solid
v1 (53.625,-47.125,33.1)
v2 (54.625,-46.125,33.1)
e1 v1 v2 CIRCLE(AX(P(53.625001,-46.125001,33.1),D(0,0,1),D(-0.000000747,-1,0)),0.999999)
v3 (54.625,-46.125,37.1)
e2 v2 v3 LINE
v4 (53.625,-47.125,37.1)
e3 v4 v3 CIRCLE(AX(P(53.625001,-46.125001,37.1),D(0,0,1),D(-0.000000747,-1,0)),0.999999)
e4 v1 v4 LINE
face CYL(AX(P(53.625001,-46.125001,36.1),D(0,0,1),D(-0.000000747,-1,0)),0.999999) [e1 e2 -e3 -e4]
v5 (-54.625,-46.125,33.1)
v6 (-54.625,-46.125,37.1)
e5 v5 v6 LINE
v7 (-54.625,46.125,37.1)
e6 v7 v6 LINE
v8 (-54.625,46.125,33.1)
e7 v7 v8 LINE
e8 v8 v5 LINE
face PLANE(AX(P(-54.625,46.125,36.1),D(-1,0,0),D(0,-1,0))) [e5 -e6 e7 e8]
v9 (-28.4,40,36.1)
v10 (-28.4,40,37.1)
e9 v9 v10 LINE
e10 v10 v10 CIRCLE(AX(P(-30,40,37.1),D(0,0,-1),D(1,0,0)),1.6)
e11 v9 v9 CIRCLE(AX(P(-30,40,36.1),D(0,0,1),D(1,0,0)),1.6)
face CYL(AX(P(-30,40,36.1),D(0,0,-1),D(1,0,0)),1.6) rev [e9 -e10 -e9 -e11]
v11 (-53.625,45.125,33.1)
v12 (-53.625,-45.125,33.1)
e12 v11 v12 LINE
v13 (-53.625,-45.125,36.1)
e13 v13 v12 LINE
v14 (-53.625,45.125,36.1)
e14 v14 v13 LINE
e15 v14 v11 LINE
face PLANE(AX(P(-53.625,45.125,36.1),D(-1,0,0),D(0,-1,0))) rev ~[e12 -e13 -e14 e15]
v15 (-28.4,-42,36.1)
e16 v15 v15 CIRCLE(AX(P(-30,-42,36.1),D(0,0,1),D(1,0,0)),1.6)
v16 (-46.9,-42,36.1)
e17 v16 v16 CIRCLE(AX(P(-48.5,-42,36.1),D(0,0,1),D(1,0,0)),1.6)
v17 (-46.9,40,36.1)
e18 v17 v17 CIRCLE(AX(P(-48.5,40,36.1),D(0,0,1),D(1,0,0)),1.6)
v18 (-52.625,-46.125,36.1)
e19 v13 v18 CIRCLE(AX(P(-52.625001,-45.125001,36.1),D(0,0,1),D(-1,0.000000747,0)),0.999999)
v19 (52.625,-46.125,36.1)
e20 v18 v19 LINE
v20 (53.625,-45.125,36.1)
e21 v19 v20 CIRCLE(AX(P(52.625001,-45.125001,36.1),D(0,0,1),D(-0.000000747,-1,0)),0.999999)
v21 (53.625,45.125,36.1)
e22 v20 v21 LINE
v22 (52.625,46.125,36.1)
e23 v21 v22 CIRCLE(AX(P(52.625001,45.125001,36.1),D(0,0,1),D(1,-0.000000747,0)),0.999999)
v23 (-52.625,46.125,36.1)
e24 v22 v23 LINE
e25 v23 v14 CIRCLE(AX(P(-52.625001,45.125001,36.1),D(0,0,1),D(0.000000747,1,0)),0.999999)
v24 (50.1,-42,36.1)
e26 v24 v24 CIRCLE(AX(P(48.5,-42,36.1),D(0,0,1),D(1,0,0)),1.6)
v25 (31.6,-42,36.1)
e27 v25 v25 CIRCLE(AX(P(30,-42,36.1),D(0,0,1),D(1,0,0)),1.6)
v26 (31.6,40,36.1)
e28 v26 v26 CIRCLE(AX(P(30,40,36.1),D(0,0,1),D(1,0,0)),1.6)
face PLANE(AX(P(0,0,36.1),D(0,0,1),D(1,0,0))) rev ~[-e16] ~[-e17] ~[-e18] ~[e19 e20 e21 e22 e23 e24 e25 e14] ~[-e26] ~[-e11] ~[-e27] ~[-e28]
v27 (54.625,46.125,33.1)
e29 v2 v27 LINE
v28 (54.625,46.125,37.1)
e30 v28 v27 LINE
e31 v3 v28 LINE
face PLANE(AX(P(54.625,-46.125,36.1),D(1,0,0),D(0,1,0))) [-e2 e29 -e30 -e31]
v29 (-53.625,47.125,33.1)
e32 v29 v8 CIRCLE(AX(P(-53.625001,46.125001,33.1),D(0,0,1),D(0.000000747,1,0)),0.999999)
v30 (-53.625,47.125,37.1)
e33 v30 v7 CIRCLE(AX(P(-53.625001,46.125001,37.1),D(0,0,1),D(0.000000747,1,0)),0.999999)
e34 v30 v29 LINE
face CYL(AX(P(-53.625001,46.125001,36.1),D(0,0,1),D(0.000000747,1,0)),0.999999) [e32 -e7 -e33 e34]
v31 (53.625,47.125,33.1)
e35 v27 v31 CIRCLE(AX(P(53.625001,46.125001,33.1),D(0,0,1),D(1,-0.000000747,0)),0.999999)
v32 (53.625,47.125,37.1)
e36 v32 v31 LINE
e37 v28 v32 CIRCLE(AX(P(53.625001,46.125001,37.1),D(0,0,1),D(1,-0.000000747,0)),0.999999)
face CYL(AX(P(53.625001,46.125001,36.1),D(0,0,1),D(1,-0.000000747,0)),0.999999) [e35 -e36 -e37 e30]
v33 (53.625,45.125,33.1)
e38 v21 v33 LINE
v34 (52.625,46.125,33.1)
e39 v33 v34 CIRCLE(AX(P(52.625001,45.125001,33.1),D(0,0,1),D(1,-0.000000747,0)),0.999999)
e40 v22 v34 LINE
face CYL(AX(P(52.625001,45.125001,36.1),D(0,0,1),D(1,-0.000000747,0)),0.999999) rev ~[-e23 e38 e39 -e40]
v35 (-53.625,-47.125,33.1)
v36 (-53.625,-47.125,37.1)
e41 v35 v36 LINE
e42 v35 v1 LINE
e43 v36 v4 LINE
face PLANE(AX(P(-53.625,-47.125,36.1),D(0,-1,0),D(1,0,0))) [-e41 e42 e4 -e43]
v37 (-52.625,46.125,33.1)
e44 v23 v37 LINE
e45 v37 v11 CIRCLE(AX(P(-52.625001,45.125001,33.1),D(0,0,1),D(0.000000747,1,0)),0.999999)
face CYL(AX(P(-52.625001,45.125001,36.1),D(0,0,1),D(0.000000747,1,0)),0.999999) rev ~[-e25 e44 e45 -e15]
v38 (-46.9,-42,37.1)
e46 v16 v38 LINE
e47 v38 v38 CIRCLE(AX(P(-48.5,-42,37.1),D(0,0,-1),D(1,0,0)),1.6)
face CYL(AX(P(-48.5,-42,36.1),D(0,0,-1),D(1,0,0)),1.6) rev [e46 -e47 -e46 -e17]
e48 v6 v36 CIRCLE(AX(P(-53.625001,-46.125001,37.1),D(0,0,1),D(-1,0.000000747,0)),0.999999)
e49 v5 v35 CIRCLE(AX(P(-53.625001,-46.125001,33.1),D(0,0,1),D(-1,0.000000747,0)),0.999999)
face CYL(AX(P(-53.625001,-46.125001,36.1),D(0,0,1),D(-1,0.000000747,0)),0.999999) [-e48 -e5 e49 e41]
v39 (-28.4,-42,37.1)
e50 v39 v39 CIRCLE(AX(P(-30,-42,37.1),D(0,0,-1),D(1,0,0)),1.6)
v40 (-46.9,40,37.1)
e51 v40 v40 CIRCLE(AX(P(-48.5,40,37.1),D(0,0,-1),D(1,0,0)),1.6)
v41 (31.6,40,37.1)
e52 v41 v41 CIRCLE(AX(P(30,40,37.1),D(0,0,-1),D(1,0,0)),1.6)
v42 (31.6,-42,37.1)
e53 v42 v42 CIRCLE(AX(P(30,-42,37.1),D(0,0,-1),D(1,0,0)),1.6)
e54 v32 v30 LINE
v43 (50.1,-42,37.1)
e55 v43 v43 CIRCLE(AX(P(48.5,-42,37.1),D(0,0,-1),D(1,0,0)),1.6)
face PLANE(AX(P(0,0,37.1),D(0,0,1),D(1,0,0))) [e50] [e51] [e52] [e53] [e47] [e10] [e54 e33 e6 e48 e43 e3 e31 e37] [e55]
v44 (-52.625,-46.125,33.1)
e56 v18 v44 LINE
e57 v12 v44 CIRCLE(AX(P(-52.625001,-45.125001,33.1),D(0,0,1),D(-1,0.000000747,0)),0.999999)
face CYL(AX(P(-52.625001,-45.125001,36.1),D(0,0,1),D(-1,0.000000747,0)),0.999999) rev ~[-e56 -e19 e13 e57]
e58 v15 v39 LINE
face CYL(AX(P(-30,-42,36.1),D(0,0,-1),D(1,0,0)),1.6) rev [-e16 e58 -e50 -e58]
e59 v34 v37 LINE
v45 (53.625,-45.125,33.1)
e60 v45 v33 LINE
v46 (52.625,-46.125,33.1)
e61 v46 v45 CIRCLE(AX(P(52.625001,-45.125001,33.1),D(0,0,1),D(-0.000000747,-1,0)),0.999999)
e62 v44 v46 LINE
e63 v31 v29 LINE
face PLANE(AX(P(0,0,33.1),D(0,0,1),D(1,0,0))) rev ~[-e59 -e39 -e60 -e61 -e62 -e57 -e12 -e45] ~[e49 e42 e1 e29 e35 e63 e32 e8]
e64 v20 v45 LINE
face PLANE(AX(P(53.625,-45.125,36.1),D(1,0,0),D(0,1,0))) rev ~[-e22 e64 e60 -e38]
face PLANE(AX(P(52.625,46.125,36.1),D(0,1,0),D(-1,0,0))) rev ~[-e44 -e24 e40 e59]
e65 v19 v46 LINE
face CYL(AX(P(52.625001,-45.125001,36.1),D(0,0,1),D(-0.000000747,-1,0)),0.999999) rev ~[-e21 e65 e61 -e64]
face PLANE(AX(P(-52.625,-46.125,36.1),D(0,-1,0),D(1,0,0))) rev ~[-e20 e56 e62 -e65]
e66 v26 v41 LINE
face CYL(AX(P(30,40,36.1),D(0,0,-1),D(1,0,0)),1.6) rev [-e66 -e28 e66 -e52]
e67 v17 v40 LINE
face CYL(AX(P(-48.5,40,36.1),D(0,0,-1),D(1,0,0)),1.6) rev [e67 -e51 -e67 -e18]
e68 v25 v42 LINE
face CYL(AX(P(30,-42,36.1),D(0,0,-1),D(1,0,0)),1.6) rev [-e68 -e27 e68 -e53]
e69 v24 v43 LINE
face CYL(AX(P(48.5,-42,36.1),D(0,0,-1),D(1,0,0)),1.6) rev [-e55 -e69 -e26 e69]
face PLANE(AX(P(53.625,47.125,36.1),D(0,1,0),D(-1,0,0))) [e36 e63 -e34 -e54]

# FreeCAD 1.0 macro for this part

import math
import FreeCAD as App
import Part
import Sketcher

V = App.Vector
Q = App.Units.Quantity

doc = App.newDocument("Part")
body = doc.addObject("PartDesign::Body", "Body")

# Sketch on XY plane
sketch1 = body.newObject("Sketcher::SketchObject", "Sketch")
sketch1.AttachmentSupport = (doc.getObject("XY_Plane"), [""])
sketch1.MapMode = "FlatFace"
sketch1.addGeometry([
    Part.LineSegment(V(-54.625, 46.125, 0), V(-54.625, -46.125, 0)),  # 0
    Part.ArcOfCircle(Part.Circle(V(-53.625001, -46.125001, 0), V(0, 0, 1), 0.999999), math.radians(179.999957), math.radians(270.000043)),  # 1
    Part.LineSegment(V(-53.625, -47.125, 0), V(53.625, -47.125, 0)),  # 2
    Part.ArcOfCircle(Part.Circle(V(53.625001, -46.125001, 0), V(0, 0, 1), 0.999999), math.radians(-90.000043), math.radians(0.000043)),  # 3
    Part.LineSegment(V(54.625, -46.125, 0), V(54.625, 46.125, 0)),  # 4
    Part.ArcOfCircle(Part.Circle(V(53.625001, 46.125001, 0), V(0, 0, 1), 0.999999), math.radians(-0.000043), math.radians(90.000043)),  # 5
    Part.LineSegment(V(53.625, 47.125, 0), V(-53.625, 47.125, 0)),  # 6
    Part.ArcOfCircle(Part.Circle(V(-53.625001, 46.125001, 0), V(0, 0, 1), 0.999999), math.radians(89.999957), math.radians(180.000043)),  # 7
], False)
sketch1.addConstraint([
    Sketcher.Constraint("Tangent", 0, 2, 1, 1),
    Sketcher.Constraint("Tangent", 1, 2, 2, 1),
    Sketcher.Constraint("Tangent", 2, 2, 3, 1),
    Sketcher.Constraint("Tangent", 3, 2, 4, 1),
    Sketcher.Constraint("Tangent", 4, 2, 5, 1),
    Sketcher.Constraint("Tangent", 5, 2, 6, 1),
    Sketcher.Constraint("Tangent", 6, 2, 7, 1),
    Sketcher.Constraint("Tangent", 7, 2, 0, 1),
    Sketcher.Constraint("Vertical", 0),
    Sketcher.Constraint("Horizontal", 2),
    Sketcher.Constraint("Vertical", 4),
    Sketcher.Constraint("Horizontal", 6),
    Sketcher.Constraint("Equal", 1, 3),
    Sketcher.Constraint("Equal", 3, 5),
    Sketcher.Constraint("Equal", 5, 7),
    Sketcher.Constraint("Symmetric", 1, 3, 5, 3, -1, 1),
    Sketcher.Constraint("Radius", 1, Q("0.999999 mm")),
    Sketcher.Constraint("DistanceX", 2, 1, 2, 2, Q("107.25 mm")),
    Sketcher.Constraint("DistanceY", 0, 2, 0, 1, Q("92.25 mm")),
])
pad1 = body.newObject("PartDesign::Pad", "Pad")
pad1.Profile = sketch1
pad1.Length = 1

# Sketch on XY plane
sketch2 = body.newObject("Sketcher::SketchObject", "Sketch001")
sketch2.AttachmentSupport = (doc.getObject("XY_Plane"), [""])
sketch2.MapMode = "FlatFace"
sketch2.addGeometry([
    Part.LineSegment(V(-54.625, 46.125, 0), V(-54.625, -46.125, 0)),  # 0
    Part.ArcOfCircle(Part.Circle(V(-53.625001, -46.125001, 0), V(0, 0, 1), 0.999999), math.radians(179.999957), math.radians(270.000043)),  # 1
    Part.LineSegment(V(-53.625, -47.125, 0), V(53.625, -47.125, 0)),  # 2
    Part.ArcOfCircle(Part.Circle(V(53.625001, -46.125001, 0), V(0, 0, 1), 0.999999), math.radians(-90.000043), math.radians(0.000043)),  # 3
    Part.LineSegment(V(54.625, -46.125, 0), V(54.625, 46.125, 0)),  # 4
    Part.ArcOfCircle(Part.Circle(V(53.625001, 46.125001, 0), V(0, 0, 1), 0.999999), math.radians(-0.000043), math.radians(90.000043)),  # 5
    Part.LineSegment(V(53.625, 47.125, 0), V(-53.625, 47.125, 0)),  # 6
    Part.ArcOfCircle(Part.Circle(V(-53.625001, 46.125001, 0), V(0, 0, 1), 0.999999), math.radians(89.999957), math.radians(180.000043)),  # 7
    Part.LineSegment(V(-53.625, -45.125, 0), V(-53.625, 45.125, 0)),  # 8
    Part.ArcOfCircle(Part.Circle(V(-52.625001, 45.125001, 0), V(0, 0, 1), 0.999999), math.radians(89.999957), math.radians(180.000043)),  # 9
    Part.LineSegment(V(-52.625, 46.125, 0), V(52.625, 46.125, 0)),  # 10
    Part.ArcOfCircle(Part.Circle(V(52.625001, 45.125001, 0), V(0, 0, 1), 0.999999), math.radians(-0.000043), math.radians(90.000043)),  # 11
    Part.LineSegment(V(53.625, 45.125, 0), V(53.625, -45.125, 0)),  # 12
    Part.ArcOfCircle(Part.Circle(V(52.625001, -45.125001, 0), V(0, 0, 1), 0.999999), math.radians(-90.000043), math.radians(0.000043)),  # 13
    Part.LineSegment(V(52.625, -46.125, 0), V(-52.625, -46.125, 0)),  # 14
    Part.ArcOfCircle(Part.Circle(V(-52.625001, -45.125001, 0), V(0, 0, 1), 0.999999), math.radians(179.999957), math.radians(270.000043)),  # 15
], False)
sketch2.addConstraint([
    Sketcher.Constraint("Tangent", 0, 2, 1, 1),
    Sketcher.Constraint("Tangent", 1, 2, 2, 1),
    Sketcher.Constraint("Tangent", 2, 2, 3, 1),
    Sketcher.Constraint("Tangent", 3, 2, 4, 1),
    Sketcher.Constraint("Tangent", 4, 2, 5, 1),
    Sketcher.Constraint("Tangent", 5, 2, 6, 1),
    Sketcher.Constraint("Tangent", 6, 2, 7, 1),
    Sketcher.Constraint("Tangent", 7, 2, 0, 1),
    Sketcher.Constraint("Tangent", 8, 2, 9, 2),
    Sketcher.Constraint("Tangent", 9, 1, 10, 1),
    Sketcher.Constraint("Tangent", 10, 2, 11, 2),
    Sketcher.Constraint("Tangent", 11, 1, 12, 1),
    Sketcher.Constraint("Tangent", 12, 2, 13, 2),
    Sketcher.Constraint("Tangent", 13, 1, 14, 1),
    Sketcher.Constraint("Tangent", 14, 2, 15, 2),
    Sketcher.Constraint("Tangent", 15, 1, 8, 1),
    Sketcher.Constraint("Vertical", 0),
    Sketcher.Constraint("Horizontal", 2),
    Sketcher.Constraint("Vertical", 4),
    Sketcher.Constraint("Horizontal", 6),
    Sketcher.Constraint("Vertical", 8),
    Sketcher.Constraint("Horizontal", 10),
    Sketcher.Constraint("Vertical", 12),
    Sketcher.Constraint("Horizontal", 14),
    Sketcher.Constraint("Equal", 1, 3),
    Sketcher.Constraint("Equal", 3, 5),
    Sketcher.Constraint("Equal", 5, 7),
    Sketcher.Constraint("Equal", 7, 9),
    Sketcher.Constraint("Equal", 9, 11),
    Sketcher.Constraint("Equal", 11, 13),
    Sketcher.Constraint("Equal", 13, 15),
    Sketcher.Constraint("Symmetric", 1, 3, 5, 3, -1, 1),
    Sketcher.Constraint("Symmetric", 9, 3, 13, 3, -1, 1),
    Sketcher.Constraint("Horizontal", 7, 2, 9, 1),
    Sketcher.Constraint("Vertical", 6, 2, 8, 2),
    Sketcher.Constraint("Radius", 1, Q("0.999999 mm")),
    Sketcher.Constraint("DistanceX", 2, 1, 2, 2, Q("107.25 mm")),
    Sketcher.Constraint("DistanceY", 0, 2, 0, 1, Q("92.25 mm")),
])
pad2 = body.newObject("PartDesign::Pad", "Pad001")
pad2.Profile = sketch2
pad2.Length = 3
pad2.Reversed = True

# Sketch on XY plane
sketch3 = body.newObject("Sketcher::SketchObject", "Sketch002")
sketch3.AttachmentSupport = (doc.getObject("XY_Plane"), [""])
sketch3.MapMode = "FlatFace"
sketch3.addGeometry([
    Part.Circle(V(-48.5, 40, 0), V(0, 0, 1), 1.6),  # 0
    Part.Circle(V(-30, 40, 0), V(0, 0, 1), 1.6),  # 1
    Part.Circle(V(30, 40, 0), V(0, 0, 1), 1.6),  # 2
    Part.Circle(V(-30, -42, 0), V(0, 0, 1), 1.6),  # 3
    Part.Circle(V(-48.5, -42, 0), V(0, 0, 1), 1.6),  # 4
    Part.Circle(V(30, -42, 0), V(0, 0, 1), 1.6),  # 5
    Part.Circle(V(48.5, -42, 0), V(0, 0, 1), 1.6),  # 6
], False)
sketch3.addConstraint([
    Sketcher.Constraint("Equal", 0, 1),
    Sketcher.Constraint("Equal", 1, 2),
    Sketcher.Constraint("Equal", 2, 3),
    Sketcher.Constraint("Equal", 3, 4),
    Sketcher.Constraint("Equal", 4, 5),
    Sketcher.Constraint("Equal", 5, 6),
    Sketcher.Constraint("Symmetric", 1, 3, 2, 3, -2),
    Sketcher.Constraint("Symmetric", 3, 3, 5, 3, -2),
    Sketcher.Constraint("Symmetric", 4, 3, 6, 3, -2),
    Sketcher.Constraint("Horizontal", 0, 3, 1, 3),
    Sketcher.Constraint("Horizontal", 3, 3, 4, 3),
    Sketcher.Constraint("Vertical", 1, 3, 3, 3),
    Sketcher.Constraint("Vertical", 0, 3, 4, 3),
    Sketcher.Constraint("Diameter", 0, Q("3.2 mm")),
    Sketcher.Constraint("DistanceY", -1, 1, 0, 3, Q("40 mm")),
    Sketcher.Constraint("DistanceX", 1, 3, -1, 1, Q("30 mm")),
    Sketcher.Constraint("DistanceY", 3, 3, -1, 1, Q("42 mm")),
    Sketcher.Constraint("DistanceX", 4, 3, 6, 3, Q("97 mm")),
])
pocket1 = body.newObject("PartDesign::Pocket", "Pocket")
pocket1.Profile = sketch3
pocket1.Length = 5
pocket1.Reversed = True
body2 = doc.addObject("PartDesign::Body", "Body001")
doc.recompute()

body.Placement = App.Placement(V(0, 0, 36.1), App.Rotation(V(0, 0, 1), 0))
boolean = body2.newObject("PartDesign::Boolean", "Boolean")
boolean.Type = "Fuse"
boolean.addObjects([body])

doc.recompute()
